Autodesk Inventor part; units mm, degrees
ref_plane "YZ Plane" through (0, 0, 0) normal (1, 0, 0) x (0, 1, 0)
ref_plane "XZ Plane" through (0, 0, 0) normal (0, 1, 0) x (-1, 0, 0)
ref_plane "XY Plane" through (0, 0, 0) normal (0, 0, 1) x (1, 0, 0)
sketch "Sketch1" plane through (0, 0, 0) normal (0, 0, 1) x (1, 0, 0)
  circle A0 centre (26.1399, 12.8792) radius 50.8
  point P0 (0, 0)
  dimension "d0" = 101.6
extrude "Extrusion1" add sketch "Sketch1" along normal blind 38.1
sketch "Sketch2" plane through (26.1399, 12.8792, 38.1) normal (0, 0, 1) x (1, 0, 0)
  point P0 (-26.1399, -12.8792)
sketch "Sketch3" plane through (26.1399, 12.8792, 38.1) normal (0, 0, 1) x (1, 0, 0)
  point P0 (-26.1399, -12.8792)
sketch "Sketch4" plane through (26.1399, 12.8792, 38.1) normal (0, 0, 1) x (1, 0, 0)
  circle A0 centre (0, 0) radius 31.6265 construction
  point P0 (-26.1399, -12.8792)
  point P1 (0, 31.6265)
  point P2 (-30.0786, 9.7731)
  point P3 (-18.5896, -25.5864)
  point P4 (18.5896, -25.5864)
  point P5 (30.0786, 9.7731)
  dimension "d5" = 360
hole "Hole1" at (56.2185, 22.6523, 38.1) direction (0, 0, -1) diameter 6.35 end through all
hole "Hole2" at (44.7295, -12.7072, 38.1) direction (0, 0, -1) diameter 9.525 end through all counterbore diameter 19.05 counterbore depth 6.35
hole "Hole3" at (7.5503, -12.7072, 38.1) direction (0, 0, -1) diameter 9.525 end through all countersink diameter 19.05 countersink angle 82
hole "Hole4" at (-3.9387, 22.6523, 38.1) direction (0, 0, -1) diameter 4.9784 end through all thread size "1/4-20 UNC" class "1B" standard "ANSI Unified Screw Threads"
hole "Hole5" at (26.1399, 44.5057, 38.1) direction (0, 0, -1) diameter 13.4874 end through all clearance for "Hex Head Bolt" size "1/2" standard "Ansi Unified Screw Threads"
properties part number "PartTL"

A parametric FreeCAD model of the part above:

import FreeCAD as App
import Part
import Sketcher
from FreeCAD import Vector
Q = App.Units.Quantity

doc = App.newDocument("Part")
body = doc.addObject("PartDesign::Body", "Body")

sketch1 = body.newObject("Sketcher::SketchObject", "Sketch")
sketch1.AttachmentSupport = (doc.getObject("XY_Plane"), [""])
sketch1.MapMode = "FlatFace"
sketch1.addGeometry(Part.Circle(Vector(26, 13, 0), Vector(0, 0, 1), 51), False)
sketch1.addConstraint(Sketcher.Constraint("Diameter", 0, Q("4 in")))
sketch1.addConstraint(Sketcher.Constraint("DistanceX", -1, 1, 0, 3, Q("26.14 mm")))
sketch1.addConstraint(Sketcher.Constraint("DistanceY", -1, 1, 0, 3, Q("12.8792 mm")))
pad1 = body.newObject("PartDesign::Pad", "Pad")
pad1.Profile = sketch1
pad1.Length = Q("1.5 in")

sketch2 = body.newObject("Sketcher::SketchObject", "Sketch001")
sketch2.AttachmentSupport = (doc.getObject("XY_Plane"), [""])
sketch2.MapMode = "FlatFace"
sketch2.AttachmentOffset = App.Placement(Vector(0, 0, 1.5 * 25.4), App.Rotation())
sketch2.addGeometry(Part.Circle(Vector(56.2, 22.7, 0), Vector(0, 0, 1), 3.2), False)
sketch2.addConstraint(Sketcher.Constraint("Diameter", 0, Q("0.25 in")))
sketch2.addConstraint(Sketcher.Constraint("DistanceX", -1, 1, 0, 3, Q("56.2185 mm")))
sketch2.addConstraint(Sketcher.Constraint("DistanceY", -1, 1, 0, 3, Q("22.6523 mm")))
doc.recompute()
hole = body.newObject("PartDesign::Hole", "Hole")
hole.Profile = sketch2
hole.ThreadType = "None"
hole.Diameter = Q("0.25 in")
hole.DepthType = "ThroughAll"

sketch3 = body.newObject("Sketcher::SketchObject", "Sketch002")
sketch3.AttachmentSupport = (doc.getObject("XY_Plane"), [""])
sketch3.MapMode = "FlatFace"
sketch3.AttachmentOffset = App.Placement(Vector(0, 0, 1.5 * 25.4), App.Rotation())
sketch3.addGeometry(Part.Circle(Vector(44.7, -12.7, 0), Vector(0, 0, 1), 4.8), False)
sketch3.addConstraint(Sketcher.Constraint("Diameter", 0, Q("0.375 in")))
sketch3.addConstraint(Sketcher.Constraint("DistanceX", -1, 1, 0, 3, Q("1.761 in")))
sketch3.addConstraint(Sketcher.Constraint("DistanceY", 0, 3, -1, 1, Q("12.7072 mm")))
doc.recompute()
hole2 = body.newObject("PartDesign::Hole", "Hole001")
hole2.Profile = sketch3
hole2.ThreadType = "None"
hole2.Diameter = Q("0.375 in")
hole2.DepthType = "ThroughAll"
hole2.HoleCutType = "Counterbore"
hole2.HoleCutDiameter = Q("0.75 in")
hole2.HoleCutDepth = Q("0.25 in")

sketch4 = body.newObject("Sketcher::SketchObject", "Sketch003")
sketch4.AttachmentSupport = (doc.getObject("XY_Plane"), [""])
sketch4.MapMode = "FlatFace"
sketch4.AttachmentOffset = App.Placement(Vector(0, 0, 1.5 * 25.4), App.Rotation())
sketch4.addGeometry(Part.Circle(Vector(7.6, -12.7, 0), Vector(0, 0, 1), 4.8), False)
sketch4.addConstraint(Sketcher.Constraint("Diameter", 0, Q("0.375 in")))
sketch4.addConstraint(Sketcher.Constraint("DistanceX", -1, 1, 0, 3, Q("7.5503 mm")))
sketch4.addConstraint(Sketcher.Constraint("DistanceY", 0, 3, -1, 1, Q("12.7072 mm")))
doc.recompute()
hole3 = body.newObject("PartDesign::Hole", "Hole002")
hole3.Profile = sketch4
hole3.ThreadType = "None"
hole3.Diameter = Q("0.375 in")
hole3.DepthType = "ThroughAll"
hole3.HoleCutType = "Countersink"
hole3.HoleCutDiameter = Q("0.75 in")
hole3.HoleCutCountersinkAngle = 82

sketch5 = body.newObject("Sketcher::SketchObject", "Sketch004")
sketch5.AttachmentSupport = (doc.getObject("XY_Plane"), [""])
sketch5.MapMode = "FlatFace"
sketch5.AttachmentOffset = App.Placement(Vector(0, 0, 1.5 * 25.4), App.Rotation())
sketch5.addGeometry(Part.Circle(Vector(-3.9, 22.7, 0), Vector(0, 0, 1), 2.5), False)
sketch5.addConstraint(Sketcher.Constraint("Diameter", 0, Q("0.196 in")))
sketch5.addConstraint(Sketcher.Constraint("DistanceX", 0, 3, -1, 1, Q("3.9387 mm")))
sketch5.addConstraint(Sketcher.Constraint("DistanceY", -1, 1, 0, 3, Q("22.6523 mm")))
doc.recompute()
hole4 = body.newObject("PartDesign::Hole", "Hole003")
hole4.Profile = sketch5
hole4.ThreadType = "None"
hole4.Diameter = Q("0.196 in")
hole4.DepthType = "ThroughAll"

sketch6 = body.newObject("Sketcher::SketchObject", "Sketch005")
sketch6.AttachmentSupport = (doc.getObject("XY_Plane"), [""])
sketch6.MapMode = "FlatFace"
sketch6.AttachmentOffset = App.Placement(Vector(0, 0, 1.5 * 25.4), App.Rotation())
sketch6.addGeometry(Part.Circle(Vector(26, 45, 0), Vector(0, 0, 1), 7), False)
sketch6.addConstraint(Sketcher.Constraint("Diameter", 0, Q("0.531 in")))
sketch6.addConstraint(Sketcher.Constraint("DistanceY", -1, 1, 0, 3, Q("1.7522 in")))
sketch6.addConstraint(Sketcher.Constraint("DistanceX", -1, 1, 0, 3, Q("26.14 mm")))
doc.recompute()
hole5 = body.newObject("PartDesign::Hole", "Hole004")
hole5.Profile = sketch6
hole5.ThreadType = "None"
hole5.Diameter = Q("0.531 in")
hole5.DepthType = "ThroughAll"

doc.recompute()
